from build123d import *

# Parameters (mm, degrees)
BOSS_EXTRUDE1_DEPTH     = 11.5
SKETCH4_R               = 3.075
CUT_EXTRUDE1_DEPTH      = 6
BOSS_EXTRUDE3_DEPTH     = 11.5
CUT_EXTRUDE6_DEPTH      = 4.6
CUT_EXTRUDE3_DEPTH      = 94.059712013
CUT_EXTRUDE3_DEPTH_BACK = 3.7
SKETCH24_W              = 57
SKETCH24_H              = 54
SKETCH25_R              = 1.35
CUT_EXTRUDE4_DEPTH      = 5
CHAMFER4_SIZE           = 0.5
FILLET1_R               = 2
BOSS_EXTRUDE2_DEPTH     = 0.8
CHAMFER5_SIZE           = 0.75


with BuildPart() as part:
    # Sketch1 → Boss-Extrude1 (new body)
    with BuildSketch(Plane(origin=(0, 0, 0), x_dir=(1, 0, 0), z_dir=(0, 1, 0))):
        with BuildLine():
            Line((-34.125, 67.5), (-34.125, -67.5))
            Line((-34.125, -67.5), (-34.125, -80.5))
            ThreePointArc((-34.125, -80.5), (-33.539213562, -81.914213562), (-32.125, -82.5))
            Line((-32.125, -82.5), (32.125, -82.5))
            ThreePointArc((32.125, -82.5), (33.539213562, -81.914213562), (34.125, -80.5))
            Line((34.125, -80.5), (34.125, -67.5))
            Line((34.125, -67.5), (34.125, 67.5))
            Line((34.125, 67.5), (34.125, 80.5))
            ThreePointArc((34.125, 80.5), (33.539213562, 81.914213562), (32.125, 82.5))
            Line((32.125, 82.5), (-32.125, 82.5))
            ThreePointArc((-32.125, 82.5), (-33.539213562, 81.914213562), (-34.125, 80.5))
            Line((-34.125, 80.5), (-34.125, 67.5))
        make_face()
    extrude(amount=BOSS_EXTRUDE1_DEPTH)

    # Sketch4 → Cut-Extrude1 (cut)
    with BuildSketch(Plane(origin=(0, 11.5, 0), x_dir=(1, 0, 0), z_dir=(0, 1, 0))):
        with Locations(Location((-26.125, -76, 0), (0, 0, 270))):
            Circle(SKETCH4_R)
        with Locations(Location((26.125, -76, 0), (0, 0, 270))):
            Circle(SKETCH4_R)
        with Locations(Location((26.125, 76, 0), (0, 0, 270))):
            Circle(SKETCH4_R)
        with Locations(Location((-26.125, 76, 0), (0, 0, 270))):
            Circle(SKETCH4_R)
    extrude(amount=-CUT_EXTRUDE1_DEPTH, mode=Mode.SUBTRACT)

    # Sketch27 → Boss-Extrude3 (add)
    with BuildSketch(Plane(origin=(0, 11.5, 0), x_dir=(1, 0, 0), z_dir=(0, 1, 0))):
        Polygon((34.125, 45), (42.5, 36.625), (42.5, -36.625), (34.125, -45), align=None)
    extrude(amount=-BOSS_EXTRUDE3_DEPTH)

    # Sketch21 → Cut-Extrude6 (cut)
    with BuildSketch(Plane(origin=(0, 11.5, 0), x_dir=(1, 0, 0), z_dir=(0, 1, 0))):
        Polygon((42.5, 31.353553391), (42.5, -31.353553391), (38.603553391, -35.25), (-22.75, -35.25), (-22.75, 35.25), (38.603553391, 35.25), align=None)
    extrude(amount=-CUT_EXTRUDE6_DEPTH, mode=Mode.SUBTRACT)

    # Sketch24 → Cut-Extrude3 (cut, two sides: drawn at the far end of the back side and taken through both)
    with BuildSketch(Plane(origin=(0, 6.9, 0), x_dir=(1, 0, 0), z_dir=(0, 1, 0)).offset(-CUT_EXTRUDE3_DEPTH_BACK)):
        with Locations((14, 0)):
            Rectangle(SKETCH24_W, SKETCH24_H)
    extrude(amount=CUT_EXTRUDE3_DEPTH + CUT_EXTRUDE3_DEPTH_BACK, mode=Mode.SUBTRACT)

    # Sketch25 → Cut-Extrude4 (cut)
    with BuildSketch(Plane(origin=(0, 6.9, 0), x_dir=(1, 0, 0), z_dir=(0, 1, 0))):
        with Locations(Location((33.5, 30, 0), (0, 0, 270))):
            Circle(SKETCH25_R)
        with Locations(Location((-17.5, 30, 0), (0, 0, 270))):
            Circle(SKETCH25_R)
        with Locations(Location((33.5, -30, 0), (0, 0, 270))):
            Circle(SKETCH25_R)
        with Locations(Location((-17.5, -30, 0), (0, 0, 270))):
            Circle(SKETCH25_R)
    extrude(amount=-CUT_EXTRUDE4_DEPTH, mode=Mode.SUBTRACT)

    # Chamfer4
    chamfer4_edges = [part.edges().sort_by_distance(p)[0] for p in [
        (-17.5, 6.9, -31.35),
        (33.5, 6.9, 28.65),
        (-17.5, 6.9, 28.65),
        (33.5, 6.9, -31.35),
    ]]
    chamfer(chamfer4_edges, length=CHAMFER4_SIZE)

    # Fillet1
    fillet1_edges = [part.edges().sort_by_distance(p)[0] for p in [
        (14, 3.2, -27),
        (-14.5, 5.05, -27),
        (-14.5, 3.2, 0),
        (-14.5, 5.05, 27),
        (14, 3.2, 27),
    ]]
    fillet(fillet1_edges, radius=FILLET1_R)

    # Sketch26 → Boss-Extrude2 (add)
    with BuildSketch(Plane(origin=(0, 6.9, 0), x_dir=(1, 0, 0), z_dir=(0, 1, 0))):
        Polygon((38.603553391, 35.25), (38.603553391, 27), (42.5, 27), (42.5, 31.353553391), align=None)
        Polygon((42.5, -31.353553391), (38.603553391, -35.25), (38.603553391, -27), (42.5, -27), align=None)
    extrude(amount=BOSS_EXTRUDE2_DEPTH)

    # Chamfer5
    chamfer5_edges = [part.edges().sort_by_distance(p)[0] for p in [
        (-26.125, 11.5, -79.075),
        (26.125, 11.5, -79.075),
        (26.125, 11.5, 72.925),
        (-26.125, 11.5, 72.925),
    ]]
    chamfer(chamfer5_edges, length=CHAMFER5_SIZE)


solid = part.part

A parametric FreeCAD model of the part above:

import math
import FreeCAD as App
import Part
import Sketcher

V = App.Vector
Q = App.Units.Quantity


def edges_at(feature, points):
    """Names of the edges that pass closest to the given points."""
    edges = feature.Shape.Edges
    near = lambda p: min(range(len(edges)), key=lambda i: edges[i].distToShape(Part.Vertex(*p))[0])
    return sorted({f"Edge{near(p) + 1}" for p in points})

doc = App.newDocument("Part")
body = doc.addObject("PartDesign::Body", "Body")

# Sketch on XZ plane
sketch1 = body.newObject("Sketcher::SketchObject", "Sketch")
sketch1.AttachmentSupport = (doc.getObject("XZ_Plane"), [""])
sketch1.MapMode = "FlatFace"
sketch1.addGeometry([
    Part.ArcOfCircle(Part.Circle(V(-32.125, 80.5, 0), V(0, 0, 1), 2), math.radians(90), math.radians(180)),  # 0
    Part.LineSegment(V(-32.125, 82.5, 0), V(32.125, 82.5, 0)),  # 1
    Part.ArcOfCircle(Part.Circle(V(32.125, 80.5, 0), V(0, 0, 1), 2), math.radians(0), math.radians(90)),  # 2
    Part.LineSegment(V(34.125, 80.5, 0), V(34.125, -80.5, 0)),  # 3
    Part.ArcOfCircle(Part.Circle(V(32.125, -80.5, 0), V(0, 0, 1), 2), math.radians(-90), math.radians(0)),  # 4
    Part.LineSegment(V(32.125, -82.5, 0), V(-32.125, -82.5, 0)),  # 5
    Part.ArcOfCircle(Part.Circle(V(-32.125, -80.5, 0), V(0, 0, 1), 2), math.radians(-180), math.radians(-90)),  # 6
    Part.LineSegment(V(-34.125, -80.5, 0), V(-34.125, 80.5, 0)),  # 7
], False)
sketch1.addConstraint([
    Sketcher.Constraint("Tangent", 0, 1, 1, 1),
    Sketcher.Constraint("Tangent", 1, 2, 2, 2),
    Sketcher.Constraint("Tangent", 2, 1, 3, 1),
    Sketcher.Constraint("Tangent", 3, 2, 4, 2),
    Sketcher.Constraint("Tangent", 4, 1, 5, 1),
    Sketcher.Constraint("Tangent", 5, 2, 6, 2),
    Sketcher.Constraint("Tangent", 6, 1, 7, 1),
    Sketcher.Constraint("Tangent", 7, 2, 0, 2),
    Sketcher.Constraint("Horizontal", 1),
    Sketcher.Constraint("Vertical", 3),
    Sketcher.Constraint("Horizontal", 5),
    Sketcher.Constraint("Vertical", 7),
    Sketcher.Constraint("Equal", 0, 2),
    Sketcher.Constraint("Equal", 2, 4),
    Sketcher.Constraint("Equal", 4, 6),
    Sketcher.Constraint("Symmetric", 0, 3, 4, 3, -1, 1),
    Sketcher.Constraint("Radius", 0, Q("2 mm")),
    Sketcher.Constraint("DistanceY", 3, 2, 3, 1, Q("161 mm")),
    Sketcher.Constraint("DistanceX", 1, 1, 1, 2, Q("64.25 mm")),
])
pad1 = body.newObject("PartDesign::Pad", "Pad")
pad1.Profile = sketch1
pad1.Length = 11.5
pad1.Reversed = True

# Sketch on XZ plane
sketch2 = body.newObject("Sketcher::SketchObject", "Sketch001")
sketch2.AttachmentSupport = (doc.getObject("XZ_Plane"), [""])
sketch2.MapMode = "FlatFace"
sketch2.AttachmentOffset = App.Placement(V(0, 0, -11.5), App.Rotation())
sketch2.addGeometry([
    Part.Circle(V(-26.125, 76, 0), V(0, 0, 1), 3.075),
    Part.Circle(V(26.125, 76, 0), V(0, 0, 1), 3.075),
    Part.Circle(V(26.125, -76, 0), V(0, 0, 1), 3.075),
    Part.Circle(V(-26.125, -76, 0), V(0, 0, 1), 3.075),
], False)
sketch2.addConstraint([
    Sketcher.Constraint("Equal", 0, 1),
    Sketcher.Constraint("Equal", 1, 2),
    Sketcher.Constraint("Equal", 2, 3),
    Sketcher.Constraint("Symmetric", 0, 3, 2, 3, -1, 1),
    Sketcher.Constraint("Symmetric", 1, 3, 3, 3, -1, 1),
    Sketcher.Constraint("Symmetric", 0, 3, 1, 3, -2),
    Sketcher.Constraint("Diameter", 0, Q("6.15 mm")),
    Sketcher.Constraint("DistanceY", -1, 1, 0, 3, Q("76 mm")),
    Sketcher.Constraint("DistanceX", 0, 3, 1, 3, Q("52.25 mm")),
])
pocket1 = body.newObject("PartDesign::Pocket", "Pocket")
pocket1.Profile = sketch2
pocket1.Length = 6
pocket1.Reversed = True

# Sketch on XZ plane
sketch3 = body.newObject("Sketcher::SketchObject", "Sketch002")
sketch3.AttachmentSupport = (doc.getObject("XZ_Plane"), [""])
sketch3.MapMode = "FlatFace"
sketch3.AttachmentOffset = App.Placement(V(0, 0, -11.5), App.Rotation())
sketch3.addGeometry([
    Part.LineSegment(V(42.5, -36.625, 0), V(34.125, -45, 0)),
    Part.LineSegment(V(34.125, -45, 0), V(34.125, 45, 0)),
    Part.LineSegment(V(34.125, 45, 0), V(42.5, 36.625, 0)),
    Part.LineSegment(V(42.5, 36.625, 0), V(42.5, -36.625, 0)),
], False)
sketch3.addConstraint([
    Sketcher.Constraint("Coincident", 0, 2, 1, 1),
    Sketcher.Constraint("Coincident", 1, 2, 2, 1),
    Sketcher.Constraint("Coincident", 2, 2, 3, 1),
    Sketcher.Constraint("Coincident", 3, 2, 0, 1),
    Sketcher.Constraint("Vertical", 1),
    Sketcher.Constraint("Vertical", 3),
    Sketcher.Constraint("Perpendicular", 0, 2),
    Sketcher.Constraint("Equal", 0, 2),
    Sketcher.Constraint("DistanceY", 1, 1, 1, 2, Q("90 mm")),
    Sketcher.Constraint("DistanceY", 0, 2, -1, 1, Q("45 mm")),
    Sketcher.Constraint("DistanceY", 3, 2, 3, 1, Q("73.25 mm")),
    Sketcher.Constraint("DistanceX", -1, 1, 2, 2, Q("42.5 mm")),
])
pad2 = body.newObject("PartDesign::Pad", "Pad001")
pad2.Profile = sketch3
pad2.Length = 11.5

# Sketch on XZ plane
sketch4 = body.newObject("Sketcher::SketchObject", "Sketch003")
sketch4.AttachmentSupport = (doc.getObject("XZ_Plane"), [""])
sketch4.MapMode = "FlatFace"
sketch4.AttachmentOffset = App.Placement(V(0, 0, -11.5), App.Rotation())
sketch4.addGeometry([
    Part.LineSegment(V(42.5, 31.353553, 0), V(42.5, -31.353553, 0)),  # 0
    Part.LineSegment(V(42.5, -31.353553, 0), V(38.603553, -35.25, 0)),  # 1
    Part.LineSegment(V(38.603553, -35.25, 0), V(-22.75, -35.25, 0)),  # 2
    Part.LineSegment(V(-22.75, -35.25, 0), V(-22.75, 35.25, 0)),  # 3
    Part.LineSegment(V(-22.75, 35.25, 0), V(38.603553, 35.25, 0)),  # 4
    Part.LineSegment(V(38.603553, 35.25, 0), V(42.5, 31.353553, 0)),  # 5
], False)
sketch4.addConstraint([
    Sketcher.Constraint("Coincident", 0, 2, 1, 1),
    Sketcher.Constraint("Coincident", 1, 2, 2, 1),
    Sketcher.Constraint("Coincident", 2, 2, 3, 1),
    Sketcher.Constraint("Coincident", 3, 2, 4, 1),
    Sketcher.Constraint("Coincident", 4, 2, 5, 1),
    Sketcher.Constraint("Coincident", 5, 2, 0, 1),
    Sketcher.Constraint("Vertical", 0),
    Sketcher.Constraint("Horizontal", 2),
    Sketcher.Constraint("Vertical", 3),
    Sketcher.Constraint("Horizontal", 4),
    Sketcher.Constraint("Symmetric", 1, 2, 4, 2, -1),
    Sketcher.Constraint("Perpendicular", 1, 5),
    Sketcher.Constraint("Equal", 1, 5),
    Sketcher.Constraint("DistanceY", 3, 1, 3, 2, Q("70.5 mm")),
    Sketcher.Constraint("DistanceX", -1, 1, 0, 2, Q("42.5 mm")),
    Sketcher.Constraint("DistanceX", 2, 2, -1, 1, Q("22.75 mm")),
    Sketcher.Constraint("DistanceX", 2, 2, 2, 1, Q("61.353553 mm")),
])
pocket2 = body.newObject("PartDesign::Pocket", "Pocket001")
pocket2.Profile = sketch4
pocket2.Length = 4.6
pocket2.Reversed = True

# Sketch on XZ plane
sketch5 = body.newObject("Sketcher::SketchObject", "Sketch004")
sketch5.AttachmentSupport = (doc.getObject("XZ_Plane"), [""])
sketch5.MapMode = "FlatFace"
sketch5.AttachmentOffset = App.Placement(V(0, 0, -6.9), App.Rotation())
sketch5.addGeometry([
    Part.LineSegment(V(-14.5, -27, 0), V(-14.5, 27, 0)),
    Part.LineSegment(V(-14.5, 27, 0), V(42.5, 27, 0)),
    Part.LineSegment(V(42.5, 27, 0), V(42.5, -27, 0)),
    Part.LineSegment(V(42.5, -27, 0), V(-14.5, -27, 0)),
], False)
sketch5.addConstraint([
    Sketcher.Constraint("Coincident", 0, 2, 1, 1),
    Sketcher.Constraint("Coincident", 1, 2, 2, 1),
    Sketcher.Constraint("Coincident", 2, 2, 3, 1),
    Sketcher.Constraint("Coincident", 3, 2, 0, 1),
    Sketcher.Constraint("Vertical", 0),
    Sketcher.Constraint("Horizontal", 1),
    Sketcher.Constraint("Vertical", 2),
    Sketcher.Constraint("Horizontal", 3),
    Sketcher.Constraint("DistanceX", 1, 1, 1, 2, Q("57 mm")),
    Sketcher.Constraint("DistanceY", 0, 1, 0, 2, Q("54 mm")),
    Sketcher.Constraint("DistanceY", -1, 1, 0, 2, Q("27 mm")),
    Sketcher.Constraint("DistanceX", 0, 2, -1, 1, Q("14.5 mm")),
])
pocket3 = body.newObject("PartDesign::Pocket", "Pocket002")
pocket3.Profile = sketch5
pocket3.Type = "TwoLengths"
pocket3.Length = 94.059712
pocket3.Length2 = 3.7

# Sketch on XZ plane
sketch6 = body.newObject("Sketcher::SketchObject", "Sketch005")
sketch6.AttachmentSupport = (doc.getObject("XZ_Plane"), [""])
sketch6.MapMode = "FlatFace"
sketch6.AttachmentOffset = App.Placement(V(0, 0, -6.9), App.Rotation())
sketch6.addGeometry([
    Part.Circle(V(33.5, -30, 0), V(0, 0, 1), 1.35),
    Part.Circle(V(-17.5, -30, 0), V(0, 0, 1), 1.35),
    Part.Circle(V(33.5, 30, 0), V(0, 0, 1), 1.35),
    Part.Circle(V(-17.5, 30, 0), V(0, 0, 1), 1.35),
], False)
sketch6.addConstraint([
    Sketcher.Constraint("Equal", 0, 1),
    Sketcher.Constraint("Equal", 1, 2),
    Sketcher.Constraint("Equal", 2, 3),
    Sketcher.Constraint("Symmetric", 0, 3, 2, 3, -1),
    Sketcher.Constraint("Symmetric", 1, 3, 3, 3, -1),
    Sketcher.Constraint("Horizontal", 0, 3, 1, 3),
    Sketcher.Constraint("Diameter", 0, Q("2.7 mm")),
    Sketcher.Constraint("DistanceY", 0, 3, -1, 1, Q("30 mm")),
    Sketcher.Constraint("DistanceX", 1, 3, 0, 3, Q("51 mm")),
    Sketcher.Constraint("DistanceX", -1, 1, 0, 3, Q("33.5 mm")),
])
pocket4 = body.newObject("PartDesign::Pocket", "Pocket003")
pocket4.Profile = sketch6
pocket4.Length = 5
pocket4.Reversed = True
doc.recompute()

chamfer = body.newObject("PartDesign::Chamfer", "Chamfer")
chamfer.Base = (pocket4, edges_at(pocket4, [
    (-17.5, 6.9, -31.35),
    (33.5, 6.9, 28.65),
    (-17.5, 6.9, 28.65),
    (33.5, 6.9, -31.35),
]))
chamfer.Size = 0.5
doc.recompute()

fillet = body.newObject("PartDesign::Fillet", "Fillet")
fillet.Base = (chamfer, edges_at(chamfer, [
    (14, 3.2, -27),
    (-14.5, 5.05, -27),
    (-14.5, 3.2, 0),
    (-14.5, 5.05, 27),
    (14, 3.2, 27),
]))
fillet.Radius = 2

# Sketch on XZ plane
sketch7 = body.newObject("Sketcher::SketchObject", "Sketch006")
sketch7.AttachmentSupport = (doc.getObject("XZ_Plane"), [""])
sketch7.MapMode = "FlatFace"
sketch7.AttachmentOffset = App.Placement(V(0, 0, -6.9), App.Rotation())
sketch7.addGeometry([
    Part.LineSegment(V(38.603553, -35.25, 0), V(38.603553, -27, 0)),  # 0
    Part.LineSegment(V(38.603553, -27, 0), V(42.5, -27, 0)),  # 1
    Part.LineSegment(V(42.5, -27, 0), V(42.5, -31.353553, 0)),  # 2
    Part.LineSegment(V(42.5, -31.353553, 0), V(38.603553, -35.25, 0)),  # 3
    Part.LineSegment(V(38.603553, 35.25, 0), V(42.5, 31.353553, 0)),  # 4
    Part.LineSegment(V(42.5, 31.353553, 0), V(42.5, 27, 0)),  # 5
    Part.LineSegment(V(42.5, 27, 0), V(38.603553, 27, 0)),  # 6
    Part.LineSegment(V(38.603553, 27, 0), V(38.603553, 35.25, 0)),  # 7
], False)
sketch7.addConstraint([
    Sketcher.Constraint("Coincident", 0, 2, 1, 1),
    Sketcher.Constraint("Coincident", 1, 2, 2, 1),
    Sketcher.Constraint("Coincident", 2, 2, 3, 1),
    Sketcher.Constraint("Coincident", 3, 2, 0, 1),
    Sketcher.Constraint("Coincident", 4, 2, 5, 1),
    Sketcher.Constraint("Coincident", 5, 2, 6, 1),
    Sketcher.Constraint("Coincident", 6, 2, 7, 1),
    Sketcher.Constraint("Coincident", 7, 2, 4, 1),
    Sketcher.Constraint("Vertical", 0),
    Sketcher.Constraint("Horizontal", 1),
    Sketcher.Constraint("Vertical", 2),
    Sketcher.Constraint("Vertical", 5),
    Sketcher.Constraint("Horizontal", 6),
    Sketcher.Constraint("Vertical", 7),
    Sketcher.Constraint("Symmetric", 2, 2, 4, 2, -1),
    Sketcher.Constraint("Symmetric", 0, 2, 6, 2, -1),
    Sketcher.Constraint("Perpendicular", 3, 4),
    Sketcher.Constraint("Equal", 0, 7),
    Sketcher.Constraint("DistanceY", 0, 2, -1, 1, Q("27 mm")),
    Sketcher.Constraint("DistanceY", 0, 1, 0, 2, Q("8.25 mm")),
    Sketcher.Constraint("DistanceX", -1, 1, 1, 2, Q("42.5 mm")),
    Sketcher.Constraint("DistanceX", 1, 1, 1, 2, Q("3.896447 mm")),
])
pad3 = body.newObject("PartDesign::Pad", "Pad002")
pad3.Profile = sketch7
pad3.Length = 0.8
pad3.Reversed = True
doc.recompute()

chamfer2 = body.newObject("PartDesign::Chamfer", "Chamfer001")
chamfer2.Base = (pad3, edges_at(pad3, [
    (-26.125, 11.5, -79.075),
    (26.125, 11.5, -79.075),
    (26.125, 11.5, 72.925),
    (-26.125, 11.5, 72.925),
]))
chamfer2.Size = 0.75

doc.recompute()
